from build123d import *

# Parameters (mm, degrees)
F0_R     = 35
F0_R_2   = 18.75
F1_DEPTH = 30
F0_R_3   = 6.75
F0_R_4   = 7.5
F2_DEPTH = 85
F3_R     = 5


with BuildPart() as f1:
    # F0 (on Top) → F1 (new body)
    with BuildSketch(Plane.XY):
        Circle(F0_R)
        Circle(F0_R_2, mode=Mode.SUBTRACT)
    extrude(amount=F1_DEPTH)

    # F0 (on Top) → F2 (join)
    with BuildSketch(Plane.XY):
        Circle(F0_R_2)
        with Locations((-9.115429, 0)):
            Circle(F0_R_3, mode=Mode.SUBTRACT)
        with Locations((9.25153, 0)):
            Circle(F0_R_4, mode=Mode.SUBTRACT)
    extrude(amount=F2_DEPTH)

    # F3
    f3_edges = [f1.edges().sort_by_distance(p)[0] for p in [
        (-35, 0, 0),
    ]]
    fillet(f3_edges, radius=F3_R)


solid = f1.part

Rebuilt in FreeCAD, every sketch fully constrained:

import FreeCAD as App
import Part
import Sketcher

V = App.Vector


def edges_at(feature, points):
    """Names of the edges that pass closest to the given points."""
    edges = feature.Shape.Edges
    near = lambda p: min(range(len(edges)), key=lambda i: edges[i].distToShape(Part.Vertex(*p))[0])
    return sorted({f"Edge{near(p) + 1}" for p in points})

doc = App.newDocument("Part")
params = doc.addObject("Spreadsheet::Sheet", "Params")
for row, (alias, value) in enumerate([
    ("sketch1_diameter", "70 mm"),
    ("sketch1_diameter2", "37.5 mm"),
    ("pad1_length", "30 mm"),
    ("sketch2_diameter", "15 mm"),
    ("sketch2_diameter2", "37.5 mm"),
    ("sketch2_diameter3", "13.5 mm"),
    ("pad2_length", "85 mm"),
    ("fillet_radius", "5 mm"),
], start=1):
    params.set(f"A{row}", alias)
    params.set(f"B{row}", "=" + value)
    params.setAlias(f"B{row}", alias)

body = doc.addObject("PartDesign::Body", "Body")

# Sketch on XY plane
sketch1 = body.newObject("Sketcher::SketchObject", "Sketch")
sketch1.AttachmentSupport = (doc.getObject("XY_Plane"), [""])
sketch1.MapMode = "FlatFace"
sketch1.addGeometry(Part.Circle(V(0, 0, 0), V(0, 0, 1), 35), False)
sketch1.addGeometry(Part.Circle(V(0, 0, 0), V(0, 0, 1), 18.75), False)
sketch1.addConstraint(Sketcher.Constraint("Coincident", 0, 3, -1, 1))
sketch1.addConstraint(Sketcher.Constraint("Coincident", 1, 3, -1, 1))
sketch1.addConstraint(Sketcher.Constraint("Diameter", 0, 70.0))
sketch1.addConstraint(Sketcher.Constraint("Diameter", 1, 37.5))
sketch1.setExpression("Constraints[2]", "Params.sketch1_diameter")
sketch1.setExpression("Constraints[3]", "Params.sketch1_diameter2")
pad1 = body.newObject("PartDesign::Pad", "Pad")
pad1.Profile = sketch1
pad1.setExpression("Length", "Params.pad1_length")

# Sketch on XY plane
sketch2 = body.newObject("Sketcher::SketchObject", "Sketch001")
sketch2.AttachmentSupport = (doc.getObject("XY_Plane"), [""])
sketch2.MapMode = "FlatFace"
sketch2.addGeometry(Part.Circle(V(0, 0, 0), V(0, 0, 1), 18.75), False)
sketch2.addGeometry(Part.Circle(V(-9.115429, 0, 0), V(0, 0, 1), 6.75), False)
sketch2.addGeometry(Part.Circle(V(9.25153, 0, 0), V(0, 0, 1), 7.5), False)
sketch2.addConstraint(Sketcher.Constraint("Coincident", 0, 3, -1, 1))
sketch2.addConstraint(Sketcher.Constraint("PointOnObject", 1, 3, -1))
sketch2.addConstraint(Sketcher.Constraint("PointOnObject", 2, 3, -1))
sketch2.addConstraint(Sketcher.Constraint("Diameter", 2, 15.0))
sketch2.addConstraint(Sketcher.Constraint("Diameter", 0, 37.5))
sketch2.addConstraint(Sketcher.Constraint("Diameter", 1, 13.5))
sketch2.addConstraint(Sketcher.Constraint("DistanceX", 1, 3, -1, 1, 9.115429))
sketch2.addConstraint(Sketcher.Constraint("DistanceX", -1, 1, 2, 3, 9.25153))
sketch2.setExpression("Constraints[3]", "Params.sketch2_diameter")
sketch2.setExpression("Constraints[4]", "Params.sketch2_diameter2")
sketch2.setExpression("Constraints[5]", "Params.sketch2_diameter3")
pad2 = body.newObject("PartDesign::Pad", "Pad001")
pad2.Profile = sketch2
pad2.setExpression("Length", "Params.pad2_length")
doc.recompute()

fillet = body.newObject("PartDesign::Fillet", "Fillet")
fillet.Base = (pad2, edges_at(pad2, [(-35, 0, 0)]))
fillet.setExpression("Radius", "Params.fillet_radius")

doc.recompute()
